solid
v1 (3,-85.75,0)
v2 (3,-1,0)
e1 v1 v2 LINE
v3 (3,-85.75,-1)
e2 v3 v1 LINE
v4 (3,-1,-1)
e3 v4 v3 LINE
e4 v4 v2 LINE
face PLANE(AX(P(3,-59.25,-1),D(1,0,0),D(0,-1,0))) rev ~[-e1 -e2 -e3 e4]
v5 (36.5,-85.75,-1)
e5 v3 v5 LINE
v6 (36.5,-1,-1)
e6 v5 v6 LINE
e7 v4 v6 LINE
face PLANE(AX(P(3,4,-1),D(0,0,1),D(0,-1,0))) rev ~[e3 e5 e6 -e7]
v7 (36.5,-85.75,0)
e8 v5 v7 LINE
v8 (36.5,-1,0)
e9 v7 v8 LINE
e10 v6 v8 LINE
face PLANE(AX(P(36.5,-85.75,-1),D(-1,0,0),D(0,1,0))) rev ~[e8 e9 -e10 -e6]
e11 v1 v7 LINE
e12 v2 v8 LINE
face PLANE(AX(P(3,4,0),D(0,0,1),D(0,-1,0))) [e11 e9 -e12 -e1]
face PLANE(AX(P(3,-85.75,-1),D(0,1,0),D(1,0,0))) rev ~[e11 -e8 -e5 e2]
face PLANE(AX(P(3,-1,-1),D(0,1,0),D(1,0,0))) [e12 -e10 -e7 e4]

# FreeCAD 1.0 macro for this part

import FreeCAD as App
import Part
import Sketcher

V = App.Vector


def add_polygon(sketch, points):
    """Adds a closed chain of lines whose ends are joined by coincident constraints."""
    first, n = sketch.GeometryCount, len(points)
    for a, b in zip(points, points[1:] + points[:1]):
        sketch.addGeometry(Part.LineSegment(App.Vector(*a, 0), App.Vector(*b, 0)), False)
    for i in range(n):
        sketch.addConstraint(Sketcher.Constraint("Coincident", first + i, 2, first + (i + 1) % n, 1))

doc = App.newDocument("Part")
params = doc.addObject("Spreadsheet::Sheet", "Params")
for row, (alias, value) in enumerate([
    ("sketch1_width", "33.5 mm"),
    ("sketch1_height", "84.75 mm"),
    ("pad1_length", "1 mm"),
], start=1):
    params.set(f"A{row}", alias)
    params.set(f"B{row}", "=" + value)
    params.setAlias(f"B{row}", alias)

body = doc.addObject("PartDesign::Body", "Body")

# Sketch on XY plane
sketch1 = body.newObject("Sketcher::SketchObject", "Sketch")
sketch1.AttachmentSupport = (doc.getObject("XY_Plane"), [""])
sketch1.MapMode = "FlatFace"
sketch1.AttachmentOffset = App.Placement(V(0, 0, -1), App.Rotation())
add_polygon(sketch1, [(3, -85.75), (36.5, -85.75), (36.5, -1), (3, -1)])  # lines 0-3
sketch1.addConstraint(Sketcher.Constraint("Horizontal", 0))
sketch1.addConstraint(Sketcher.Constraint("Vertical", 1))
sketch1.addConstraint(Sketcher.Constraint("Horizontal", 2))
sketch1.addConstraint(Sketcher.Constraint("Vertical", 3))
sketch1.addConstraint(Sketcher.Constraint("DistanceX", 0, 1, 0, 2, 33.5))
sketch1.addConstraint(Sketcher.Constraint("DistanceY", 1, 2, -1, 1, 1.0))
sketch1.addConstraint(Sketcher.Constraint("DistanceX", -1, 1, 2, 2, 3.0))
sketch1.addConstraint(Sketcher.Constraint("DistanceY", 1, 1, 1, 2, 84.75))
sketch1.setExpression("Constraints[8]", "Params.sketch1_width")
sketch1.setExpression("Constraints[11]", "Params.sketch1_height")
pad1 = body.newObject("PartDesign::Pad", "Pad")
pad1.Profile = sketch1
pad1.setExpression("Length", "Params.pad1_length")

doc.recompute()
